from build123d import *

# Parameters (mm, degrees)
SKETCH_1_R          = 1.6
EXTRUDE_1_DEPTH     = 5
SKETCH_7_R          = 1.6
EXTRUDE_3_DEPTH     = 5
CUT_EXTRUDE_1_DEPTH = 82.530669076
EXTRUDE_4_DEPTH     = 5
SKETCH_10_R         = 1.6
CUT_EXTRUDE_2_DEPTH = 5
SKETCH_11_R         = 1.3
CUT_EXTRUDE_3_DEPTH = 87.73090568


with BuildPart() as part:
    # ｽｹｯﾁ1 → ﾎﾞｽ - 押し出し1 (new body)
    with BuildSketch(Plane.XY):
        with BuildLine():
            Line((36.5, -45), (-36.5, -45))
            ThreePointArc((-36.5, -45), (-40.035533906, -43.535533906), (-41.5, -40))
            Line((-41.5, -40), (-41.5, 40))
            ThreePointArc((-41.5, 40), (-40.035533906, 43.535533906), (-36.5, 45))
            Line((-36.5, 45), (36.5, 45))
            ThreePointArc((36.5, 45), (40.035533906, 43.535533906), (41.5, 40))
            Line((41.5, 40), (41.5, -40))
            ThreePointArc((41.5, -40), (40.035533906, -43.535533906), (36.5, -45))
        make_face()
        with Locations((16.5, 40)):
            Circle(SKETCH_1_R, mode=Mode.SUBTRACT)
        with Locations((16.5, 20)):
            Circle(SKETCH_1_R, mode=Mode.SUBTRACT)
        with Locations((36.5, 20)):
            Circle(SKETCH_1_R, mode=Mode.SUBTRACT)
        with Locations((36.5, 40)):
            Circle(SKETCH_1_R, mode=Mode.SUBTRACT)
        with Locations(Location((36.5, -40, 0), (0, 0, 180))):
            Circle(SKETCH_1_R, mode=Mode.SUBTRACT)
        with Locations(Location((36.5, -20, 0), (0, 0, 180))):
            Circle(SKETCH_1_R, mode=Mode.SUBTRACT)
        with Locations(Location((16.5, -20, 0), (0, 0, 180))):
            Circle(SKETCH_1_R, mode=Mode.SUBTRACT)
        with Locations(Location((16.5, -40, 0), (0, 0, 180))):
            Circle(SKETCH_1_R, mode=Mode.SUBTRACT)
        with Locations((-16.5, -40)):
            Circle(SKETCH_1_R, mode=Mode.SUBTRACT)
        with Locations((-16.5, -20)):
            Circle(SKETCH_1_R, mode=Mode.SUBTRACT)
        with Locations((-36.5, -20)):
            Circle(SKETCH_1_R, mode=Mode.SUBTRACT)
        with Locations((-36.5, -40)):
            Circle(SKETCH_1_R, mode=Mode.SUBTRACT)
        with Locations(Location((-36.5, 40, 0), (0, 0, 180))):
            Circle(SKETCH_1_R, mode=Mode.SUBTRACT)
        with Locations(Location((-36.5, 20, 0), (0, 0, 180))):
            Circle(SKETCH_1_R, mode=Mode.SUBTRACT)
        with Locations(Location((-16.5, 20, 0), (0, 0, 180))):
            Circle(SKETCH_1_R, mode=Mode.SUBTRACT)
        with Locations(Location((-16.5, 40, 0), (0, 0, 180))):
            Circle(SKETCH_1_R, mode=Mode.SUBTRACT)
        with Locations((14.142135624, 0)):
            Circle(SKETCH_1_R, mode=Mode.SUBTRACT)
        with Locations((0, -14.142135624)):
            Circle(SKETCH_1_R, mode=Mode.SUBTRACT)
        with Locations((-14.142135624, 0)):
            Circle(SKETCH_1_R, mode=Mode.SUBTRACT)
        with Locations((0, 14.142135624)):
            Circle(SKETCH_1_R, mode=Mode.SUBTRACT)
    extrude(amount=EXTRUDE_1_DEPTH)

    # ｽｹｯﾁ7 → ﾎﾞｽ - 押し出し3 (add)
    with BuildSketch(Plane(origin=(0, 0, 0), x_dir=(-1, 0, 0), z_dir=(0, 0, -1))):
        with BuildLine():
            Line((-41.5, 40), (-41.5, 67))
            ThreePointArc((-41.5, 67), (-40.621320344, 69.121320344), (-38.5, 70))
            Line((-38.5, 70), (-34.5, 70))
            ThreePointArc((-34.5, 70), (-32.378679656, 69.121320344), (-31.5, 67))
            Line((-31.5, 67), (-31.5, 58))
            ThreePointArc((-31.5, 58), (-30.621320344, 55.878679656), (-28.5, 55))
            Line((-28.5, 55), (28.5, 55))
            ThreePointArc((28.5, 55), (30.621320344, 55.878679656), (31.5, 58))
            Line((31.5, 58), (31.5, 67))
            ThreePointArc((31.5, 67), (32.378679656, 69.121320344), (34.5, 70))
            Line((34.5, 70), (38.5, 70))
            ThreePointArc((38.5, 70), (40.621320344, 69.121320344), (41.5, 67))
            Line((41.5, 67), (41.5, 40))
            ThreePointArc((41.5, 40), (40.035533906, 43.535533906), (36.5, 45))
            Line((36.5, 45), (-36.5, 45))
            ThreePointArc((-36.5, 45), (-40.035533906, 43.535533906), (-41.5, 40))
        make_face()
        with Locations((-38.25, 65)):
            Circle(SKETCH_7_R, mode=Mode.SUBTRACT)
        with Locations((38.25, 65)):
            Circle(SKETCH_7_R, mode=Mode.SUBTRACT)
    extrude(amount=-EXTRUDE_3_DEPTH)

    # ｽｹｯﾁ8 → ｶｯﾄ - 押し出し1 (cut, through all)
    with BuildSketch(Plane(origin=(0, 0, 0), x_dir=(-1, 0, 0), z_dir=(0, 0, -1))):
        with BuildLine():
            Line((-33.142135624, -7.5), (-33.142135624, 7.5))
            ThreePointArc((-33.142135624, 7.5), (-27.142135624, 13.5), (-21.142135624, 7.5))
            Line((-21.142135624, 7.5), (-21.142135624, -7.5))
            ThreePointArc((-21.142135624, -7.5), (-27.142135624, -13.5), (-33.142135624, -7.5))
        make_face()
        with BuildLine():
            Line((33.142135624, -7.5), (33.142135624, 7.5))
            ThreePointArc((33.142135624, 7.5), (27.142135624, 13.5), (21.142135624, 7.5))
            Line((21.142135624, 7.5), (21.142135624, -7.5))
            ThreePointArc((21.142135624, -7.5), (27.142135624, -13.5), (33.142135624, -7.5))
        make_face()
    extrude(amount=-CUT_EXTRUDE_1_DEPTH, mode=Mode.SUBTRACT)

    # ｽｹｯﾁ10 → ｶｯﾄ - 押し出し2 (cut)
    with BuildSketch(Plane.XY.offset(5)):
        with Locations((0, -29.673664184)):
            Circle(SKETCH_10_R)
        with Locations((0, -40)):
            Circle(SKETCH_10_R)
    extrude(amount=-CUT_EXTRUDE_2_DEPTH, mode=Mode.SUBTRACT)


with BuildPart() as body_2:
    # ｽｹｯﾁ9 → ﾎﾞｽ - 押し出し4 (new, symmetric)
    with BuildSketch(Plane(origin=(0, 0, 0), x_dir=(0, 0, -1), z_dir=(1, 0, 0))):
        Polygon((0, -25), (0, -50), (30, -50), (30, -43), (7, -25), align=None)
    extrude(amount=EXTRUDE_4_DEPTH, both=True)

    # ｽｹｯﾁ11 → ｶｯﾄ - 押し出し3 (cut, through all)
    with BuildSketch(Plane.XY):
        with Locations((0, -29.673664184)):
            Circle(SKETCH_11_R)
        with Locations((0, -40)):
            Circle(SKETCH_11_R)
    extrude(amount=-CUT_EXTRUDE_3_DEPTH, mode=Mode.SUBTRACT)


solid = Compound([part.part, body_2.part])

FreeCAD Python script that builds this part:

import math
import FreeCAD as App
import Part
import Sketcher
from FreeCAD import Vector


def add_polygon(sketch, points):
    """Adds a closed chain of lines whose ends are joined by coincident constraints."""
    first, n = sketch.GeometryCount, len(points)
    for a, b in zip(points, points[1:] + points[:1]):
        sketch.addGeometry(Part.LineSegment(App.Vector(*a, 0), App.Vector(*b, 0)), False)
    for i in range(n):
        sketch.addConstraint(Sketcher.Constraint("Coincident", first + i, 2, first + (i + 1) % n, 1))

doc = App.newDocument("Part")
body = doc.addObject("PartDesign::Body", "Body")

# Sketch on XY plane
sketch1 = body.newObject("Sketcher::SketchObject", "Sketch")
sketch1.AttachmentSupport = (doc.getObject("XY_Plane"), [""])
sketch1.MapMode = "FlatFace"
sketch1.addGeometry([
    Part.LineSegment(Vector(-36.5, -45, 0), Vector(36.5, -45, 0)),  # 0
    Part.ArcOfCircle(Part.Circle(Vector(36.5, -40, 0), Vector(0, 0, 1), 5), math.radians(-90), math.radians(0)),  # 1
    Part.LineSegment(Vector(41.5, -40, 0), Vector(41.5, 40, 0)),  # 2
    Part.ArcOfCircle(Part.Circle(Vector(36.5, 40, 0), Vector(0, 0, 1), 5), math.radians(0), math.radians(90)),  # 3
    Part.LineSegment(Vector(36.5, 45, 0), Vector(-36.5, 45, 0)),  # 4
    Part.ArcOfCircle(Part.Circle(Vector(-36.5, 40, 0), Vector(0, 0, 1), 5), math.radians(90), math.radians(180)),  # 5
    Part.LineSegment(Vector(-41.5, 40, 0), Vector(-41.5, -40, 0)),  # 6
    Part.ArcOfCircle(Part.Circle(Vector(-36.5, -40, 0), Vector(0, 0, 1), 5), math.radians(180), math.radians(270)),  # 7
    Part.Circle(Vector(36.5, -40, 0), Vector(0, 0, 1), 1.6),  # 8
    Part.Circle(Vector(16.5, -40, 0), Vector(0, 0, 1), 1.6),  # 9
    Part.Circle(Vector(36.5, -20, 0), Vector(0, 0, 1), 1.6),  # 10
    Part.Circle(Vector(16.5, -20, 0), Vector(0, 0, 1), 1.6),  # 11
    Part.Circle(Vector(-16.5, -40, 0), Vector(0, 0, 1), 1.6),  # 12
    Part.Circle(Vector(-36.5, -40, 0), Vector(0, 0, 1), 1.6),  # 13
    Part.Circle(Vector(0, -14.1, 0), Vector(0, 0, 1), 1.6),  # 14
    Part.Circle(Vector(-16.5, -20, 0), Vector(0, 0, 1), 1.6),  # 15
    Part.Circle(Vector(-36.5, -20, 0), Vector(0, 0, 1), 1.6),  # 16
    Part.Circle(Vector(36.5, 20, 0), Vector(0, 0, 1), 1.6),  # 17
    Part.Circle(Vector(14.1, 0, 0), Vector(0, 0, 1), 1.6),  # 18
    Part.Circle(Vector(16.5, 20, 0), Vector(0, 0, 1), 1.6),  # 19
    Part.Circle(Vector(36.5, 40, 0), Vector(0, 0, 1), 1.6),  # 20
    Part.Circle(Vector(16.5, 40, 0), Vector(0, 0, 1), 1.6),  # 21
    Part.Circle(Vector(-14.1, 0, 0), Vector(0, 0, 1), 1.6),  # 22
    Part.Circle(Vector(0, 14.1, 0), Vector(0, 0, 1), 1.6),  # 23
    Part.Circle(Vector(-16.5, 20, 0), Vector(0, 0, 1), 1.6),  # 24
    Part.Circle(Vector(-36.5, 20, 0), Vector(0, 0, 1), 1.6),  # 25
    Part.Circle(Vector(-16.5, 40, 0), Vector(0, 0, 1), 1.6),  # 26
    Part.Circle(Vector(-36.5, 40, 0), Vector(0, 0, 1), 1.6),  # 27
], False)
sketch1.addConstraint([
    Sketcher.Constraint("Tangent", 0, 2, 1, 1),
    Sketcher.Constraint("Tangent", 1, 2, 2, 1),
    Sketcher.Constraint("Tangent", 2, 2, 3, 1),
    Sketcher.Constraint("Tangent", 3, 2, 4, 1),
    Sketcher.Constraint("Tangent", 4, 2, 5, 1),
    Sketcher.Constraint("Tangent", 5, 2, 6, 1),
    Sketcher.Constraint("Tangent", 6, 2, 7, 1),
    Sketcher.Constraint("Tangent", 7, 2, 0, 1),
    Sketcher.Constraint("Horizontal", 0),
    Sketcher.Constraint("Vertical", 2),
    Sketcher.Constraint("Horizontal", 4),
    Sketcher.Constraint("Vertical", 6),
    Sketcher.Constraint("Coincident", 8, 3, 1, 3),
    Sketcher.Constraint("Coincident", 13, 3, 7, 3),
    Sketcher.Constraint("Coincident", 20, 3, 3, 3),
    Sketcher.Constraint("Coincident", 27, 3, 5, 3),
    Sketcher.Constraint("Equal", 1, 3),
    Sketcher.Constraint("Equal", 3, 5),
    Sketcher.Constraint("Equal", 5, 7),
    Sketcher.Constraint("Equal", 8, 9),
    Sketcher.Constraint("Equal", 9, 10),
    Sketcher.Constraint("Equal", 10, 11),
    Sketcher.Constraint("Equal", 11, 12),
    Sketcher.Constraint("Equal", 12, 13),
    Sketcher.Constraint("Equal", 13, 14),
    Sketcher.Constraint("Equal", 14, 15),
    Sketcher.Constraint("Equal", 15, 16),
    Sketcher.Constraint("Equal", 16, 17),
    Sketcher.Constraint("Equal", 17, 18),
    Sketcher.Constraint("Equal", 18, 19),
    Sketcher.Constraint("Equal", 19, 20),
    Sketcher.Constraint("Equal", 20, 21),
    Sketcher.Constraint("Equal", 21, 22),
    Sketcher.Constraint("Equal", 22, 23),
    Sketcher.Constraint("Equal", 23, 24),
    Sketcher.Constraint("Equal", 24, 25),
    Sketcher.Constraint("Equal", 25, 26),
    Sketcher.Constraint("Equal", 26, 27),
    Sketcher.Constraint("Symmetric", 1, 3, 5, 3, -1, 1),
    Sketcher.Constraint("Symmetric", 16, 3, 17, 3, -1, 1),
    Sketcher.Constraint("Symmetric", 15, 3, 19, 3, -1, 1),
    Sketcher.Constraint("Symmetric", 12, 3, 21, 3, -1, 1),
    Sketcher.Constraint("Symmetric", 18, 3, 22, 3, -1, 1),
    Sketcher.Constraint("Symmetric", 14, 3, 23, 3, -1, 1),
    Sketcher.Constraint("Symmetric", 11, 3, 24, 3, -1, 1),
    Sketcher.Constraint("Symmetric", 10, 3, 25, 3, -1, 1),
    Sketcher.Constraint("Symmetric", 9, 3, 26, 3, -1, 1),
    Sketcher.Constraint("Symmetric", 9, 3, 12, 3, -2),
    Sketcher.Constraint("Symmetric", 11, 3, 15, 3, -2),
    Sketcher.Constraint("Symmetric", 10, 3, 16, 3, -2),
    Sketcher.Constraint("PointOnObject", 14, 3, -2),
    Sketcher.Constraint("PointOnObject", 18, 3, -1),
    Sketcher.Constraint("Horizontal", 8, 3, 9, 3),
    Sketcher.Constraint("Horizontal", 10, 3, 11, 3),
    Sketcher.Constraint("Vertical", 8, 3, 10, 3),
    Sketcher.Constraint("Vertical", 9, 3, 11, 3),
    Sketcher.Constraint("Radius", 1, 5.0),
    Sketcher.Constraint("Diameter", 8, 3.2),
    Sketcher.Constraint("DistanceX", 0, 1, 0, 2, 73.0),
    Sketcher.Constraint("DistanceY", 2, 1, 2, 2, 80.0),
    Sketcher.Constraint("DistanceY", 10, 3, -1, 1, 20.0),
    Sketcher.Constraint("DistanceX", 9, 3, 1, 3, 20.0),
    Sketcher.Constraint("DistanceX", 22, 3, 18, 3, 28.284271),
    Sketcher.Constraint("DistanceY", 14, 3, 23, 3, 28.284271),
])
pad1 = body.newObject("PartDesign::Pad", "Pad")
pad1.Profile = sketch1
pad1.Length = 5

# Sketch on XY plane
sketch2 = body.newObject("Sketcher::SketchObject", "Sketch001")
sketch2.AttachmentSupport = (doc.getObject("XY_Plane"), [""])
sketch2.MapMode = "FlatFace"
sketch2.addGeometry([
    Part.LineSegment(Vector(41.5, 67, 0), Vector(41.5, 40, 0)),  # 0
    Part.ArcOfCircle(Part.Circle(Vector(36.5, 40, 0), Vector(0, 0, 1), 5), math.radians(0), math.radians(90)),  # 1
    Part.LineSegment(Vector(36.5, 45, 0), Vector(-36.5, 45, 0)),  # 2
    Part.ArcOfCircle(Part.Circle(Vector(-36.5, 40, 0), Vector(0, 0, 1), 5), math.radians(90), math.radians(180)),  # 3
    Part.LineSegment(Vector(-41.5, 40, 0), Vector(-41.5, 67, 0)),  # 4
    Part.ArcOfCircle(Part.Circle(Vector(-38.5, 67, 0), Vector(0, 0, 1), 3), math.radians(90), math.radians(180)),  # 5
    Part.LineSegment(Vector(-38.5, 70, 0), Vector(-34.5, 70, 0)),  # 6
    Part.ArcOfCircle(Part.Circle(Vector(-34.5, 67, 0), Vector(0, 0, 1), 3), math.radians(0), math.radians(90)),  # 7
    Part.LineSegment(Vector(-31.5, 67, 0), Vector(-31.5, 58, 0)),  # 8
    Part.ArcOfCircle(Part.Circle(Vector(-28.5, 58, 0), Vector(0, 0, 1), 3), math.radians(180), math.radians(270)),  # 9
    Part.LineSegment(Vector(-28.5, 55, 0), Vector(28.5, 55, 0)),  # 10
    Part.ArcOfCircle(Part.Circle(Vector(28.5, 58, 0), Vector(0, 0, 1), 3), math.radians(-90), math.radians(0)),  # 11
    Part.LineSegment(Vector(31.5, 58, 0), Vector(31.5, 67, 0)),  # 12
    Part.ArcOfCircle(Part.Circle(Vector(34.5, 67, 0), Vector(0, 0, 1), 3), math.radians(90), math.radians(180)),  # 13
    Part.LineSegment(Vector(34.5, 70, 0), Vector(38.5, 70, 0)),  # 14
    Part.ArcOfCircle(Part.Circle(Vector(38.5, 67, 0), Vector(0, 0, 1), 3), math.radians(0), math.radians(90)),  # 15
    Part.Circle(Vector(-38.2, 65, 0), Vector(0, 0, 1), 1.6),  # 16
    Part.Circle(Vector(38.2, 65, 0), Vector(0, 0, 1), 1.6),  # 17
], False)
sketch2.addConstraint([
    Sketcher.Constraint("Tangent", 0, 2, 1, 1),
    Sketcher.Constraint("Tangent", 1, 2, 2, 1),
    Sketcher.Constraint("Tangent", 2, 2, 3, 1),
    Sketcher.Constraint("Tangent", 3, 2, 4, 1),
    Sketcher.Constraint("Tangent", 4, 2, 5, 2),
    Sketcher.Constraint("Tangent", 5, 1, 6, 1),
    Sketcher.Constraint("Tangent", 6, 2, 7, 2),
    Sketcher.Constraint("Tangent", 7, 1, 8, 1),
    Sketcher.Constraint("Tangent", 8, 2, 9, 1),
    Sketcher.Constraint("Tangent", 9, 2, 10, 1),
    Sketcher.Constraint("Tangent", 10, 2, 11, 1),
    Sketcher.Constraint("Tangent", 11, 2, 12, 1),
    Sketcher.Constraint("Tangent", 12, 2, 13, 2),
    Sketcher.Constraint("Tangent", 13, 1, 14, 1),
    Sketcher.Constraint("Tangent", 14, 2, 15, 2),
    Sketcher.Constraint("Tangent", 15, 1, 0, 1),
    Sketcher.Constraint("Vertical", 0),
    Sketcher.Constraint("Horizontal", 2),
    Sketcher.Constraint("Vertical", 4),
    Sketcher.Constraint("Horizontal", 6),
    Sketcher.Constraint("Vertical", 8),
    Sketcher.Constraint("Horizontal", 10),
    Sketcher.Constraint("Vertical", 12),
    Sketcher.Constraint("Horizontal", 14),
    Sketcher.Constraint("Equal", 1, 3),
    Sketcher.Constraint("Equal", 5, 7),
    Sketcher.Constraint("Equal", 7, 9),
    Sketcher.Constraint("Equal", 9, 11),
    Sketcher.Constraint("Equal", 11, 13),
    Sketcher.Constraint("Equal", 13, 15),
    Sketcher.Constraint("Equal", 16, 17),
    Sketcher.Constraint("Symmetric", 7, 3, 13, 3, -2),
    Sketcher.Constraint("Symmetric", 16, 3, 17, 3, -2),
    Sketcher.Constraint("Equal", 6, 14),
    Sketcher.Constraint("Radius", 1, 5.0),
    Sketcher.Constraint("Radius", 5, 3.0),
    Sketcher.Constraint("Diameter", 16, 3.2),
    Sketcher.Constraint("DistanceX", 2, 2, 2, 1, 73.0),
    Sketcher.Constraint("DistanceX", 6, 1, 6, 2, 4.0),
    Sketcher.Constraint("DistanceY", 0, 2, 0, 1, 27.0),
    Sketcher.Constraint("DistanceY", 8, 2, 8, 1, 9.0),
    Sketcher.Constraint("DistanceY", -1, 1, 1, 3, 40.0),
    Sketcher.Constraint("DistanceY", -1, 1, 16, 3, 65.0),
    Sketcher.Constraint("DistanceX", 16, 3, -1, 1, 38.25),
])
pad2 = body.newObject("PartDesign::Pad", "Pad001")
pad2.Profile = sketch2
pad2.Length = 5

# Sketch on XY plane
sketch3 = body.newObject("Sketcher::SketchObject", "Sketch002")
sketch3.AttachmentSupport = (doc.getObject("XY_Plane"), [""])
sketch3.MapMode = "FlatFace"
sketch3.addGeometry([
    Part.LineSegment(Vector(33, 8, 0), Vector(33, -8, 0)),  # 0
    Part.ArcOfCircle(Part.Circle(Vector(27, -8, 0), Vector(0, 0, 1), 6), math.radians(180), math.radians(360)),  # 1
    Part.LineSegment(Vector(21, -8, 0), Vector(21, 8, 0)),  # 2
    Part.ArcOfCircle(Part.Circle(Vector(27, 8, 0), Vector(0, 0, 1), 6), math.radians(0), math.radians(180)),  # 3
    Part.LineSegment(Vector(-33, -8, 0), Vector(-33, 8, 0)),  # 4
    Part.ArcOfCircle(Part.Circle(Vector(-27, 8, 0), Vector(0, 0, 1), 6), math.radians(0), math.radians(180)),  # 5
    Part.LineSegment(Vector(-21, 8, 0), Vector(-21, -8, 0)),  # 6
    Part.ArcOfCircle(Part.Circle(Vector(-27, -8, 0), Vector(0, 0, 1), 6), math.radians(180), math.radians(360)),  # 7
], False)
sketch3.addConstraint([
    Sketcher.Constraint("Tangent", 0, 2, 1, 2),
    Sketcher.Constraint("Tangent", 1, 1, 2, 1),
    Sketcher.Constraint("Tangent", 2, 2, 3, 2),
    Sketcher.Constraint("Tangent", 3, 1, 0, 1),
    Sketcher.Constraint("Tangent", 4, 2, 5, 2),
    Sketcher.Constraint("Tangent", 5, 1, 6, 1),
    Sketcher.Constraint("Tangent", 6, 2, 7, 2),
    Sketcher.Constraint("Tangent", 7, 1, 4, 1),
    Sketcher.Constraint("Vertical", 0),
    Sketcher.Constraint("Vertical", 2),
    Sketcher.Constraint("Vertical", 4),
    Sketcher.Constraint("Vertical", 6),
    Sketcher.Constraint("Equal", 3, 5),
    Sketcher.Constraint("Symmetric", 1, 3, 5, 3, -1, 1),
    Sketcher.Constraint("Horizontal", 3, 3, 5, 3),
    Sketcher.Constraint("Horizontal", 1, 3, 7, 3),
    Sketcher.Constraint("Radius", 1, 6.0),
    Sketcher.Constraint("DistanceY", 0, 2, 0, 1, 15.0),
    Sketcher.Constraint("DistanceX", 5, 3, 3, 3, 54.284271),
])
pocket1 = body.newObject("PartDesign::Pocket", "Pocket")
pocket1.Profile = sketch3
pocket1.Type = "ThroughAll"
pocket1.Reversed = True

# Sketch on XY plane
sketch4 = body.newObject("Sketcher::SketchObject", "Sketch003")
sketch4.AttachmentSupport = (doc.getObject("XY_Plane"), [""])
sketch4.MapMode = "FlatFace"
sketch4.AttachmentOffset = App.Placement(Vector(0, 0, 5), App.Rotation())
sketch4.addGeometry([
    Part.Circle(Vector(0, -29.7, 0), Vector(0, 0, 1), 1.6),
    Part.Circle(Vector(0, -40, 0), Vector(0, 0, 1), 1.6),
], False)
sketch4.addConstraint([
    Sketcher.Constraint("Equal", 0, 1),
    Sketcher.Constraint("PointOnObject", 0, 3, -2),
    Sketcher.Constraint("PointOnObject", 1, 3, -2),
    Sketcher.Constraint("Diameter", 0, 3.2),
    Sketcher.Constraint("DistanceY", 1, 3, -1, 1, 40.0),
    Sketcher.Constraint("DistanceY", 0, 3, -1, 1, 29.673664),
])
pocket2 = body.newObject("PartDesign::Pocket", "Pocket001")
pocket2.Profile = sketch4
pocket2.Length = 5
body2 = doc.addObject("PartDesign::Body", "Body001")

# Sketch on YZ plane
sketch5 = body2.newObject("Sketcher::SketchObject", "Sketch004")
sketch5.AttachmentSupport = (doc.getObject("YZ_Plane001"), [""])
sketch5.MapMode = "FlatFace"
add_polygon(sketch5, [(-25, 0), (-50, 0), (-50, -30), (-43, -30), (-25, -7)])  # lines 0-4
sketch5.addConstraint([
    Sketcher.Constraint("Horizontal", 0),
    Sketcher.Constraint("Vertical", 1),
    Sketcher.Constraint("Horizontal", 2),
    Sketcher.Constraint("Vertical", 4),
    Sketcher.Constraint("PointOnObject", 0, 2, -1),
    Sketcher.Constraint("Equal", 2, 4),
    Sketcher.Constraint("DistanceX", 0, 2, 0, 1, 25.0),
    Sketcher.Constraint("DistanceX", 2, 1, 2, 2, 7.0),
    Sketcher.Constraint("DistanceY", 1, 2, 1, 1, 30.0),
    Sketcher.Constraint("DistanceX", 0, 2, -1, 1, 50.0),
])
pad3 = body2.newObject("PartDesign::Pad", "Pad002")
pad3.Profile = sketch5
pad3.Length = 10
pad3.Midplane = True

# Sketch on XY plane
sketch6 = body2.newObject("Sketcher::SketchObject", "Sketch005")
sketch6.AttachmentSupport = (doc.getObject("XY_Plane001"), [""])
sketch6.MapMode = "FlatFace"
sketch6.addGeometry([
    Part.Circle(Vector(0, -29.7, 0), Vector(0, 0, 1), 1.3),
    Part.Circle(Vector(0, -40, 0), Vector(0, 0, 1), 1.3),
], False)
sketch6.addConstraint([
    Sketcher.Constraint("Equal", 0, 1),
    Sketcher.Constraint("PointOnObject", 0, 3, -2),
    Sketcher.Constraint("PointOnObject", 1, 3, -2),
    Sketcher.Constraint("Diameter", 0, 2.6),
    Sketcher.Constraint("DistanceY", 1, 3, -1, 1, 40.0),
    Sketcher.Constraint("DistanceY", 0, 3, -1, 1, 29.673664),
])
pocket3 = body2.newObject("PartDesign::Pocket", "Pocket002")
pocket3.Profile = sketch6
pocket3.Type = "ThroughAll"

doc.recompute()
